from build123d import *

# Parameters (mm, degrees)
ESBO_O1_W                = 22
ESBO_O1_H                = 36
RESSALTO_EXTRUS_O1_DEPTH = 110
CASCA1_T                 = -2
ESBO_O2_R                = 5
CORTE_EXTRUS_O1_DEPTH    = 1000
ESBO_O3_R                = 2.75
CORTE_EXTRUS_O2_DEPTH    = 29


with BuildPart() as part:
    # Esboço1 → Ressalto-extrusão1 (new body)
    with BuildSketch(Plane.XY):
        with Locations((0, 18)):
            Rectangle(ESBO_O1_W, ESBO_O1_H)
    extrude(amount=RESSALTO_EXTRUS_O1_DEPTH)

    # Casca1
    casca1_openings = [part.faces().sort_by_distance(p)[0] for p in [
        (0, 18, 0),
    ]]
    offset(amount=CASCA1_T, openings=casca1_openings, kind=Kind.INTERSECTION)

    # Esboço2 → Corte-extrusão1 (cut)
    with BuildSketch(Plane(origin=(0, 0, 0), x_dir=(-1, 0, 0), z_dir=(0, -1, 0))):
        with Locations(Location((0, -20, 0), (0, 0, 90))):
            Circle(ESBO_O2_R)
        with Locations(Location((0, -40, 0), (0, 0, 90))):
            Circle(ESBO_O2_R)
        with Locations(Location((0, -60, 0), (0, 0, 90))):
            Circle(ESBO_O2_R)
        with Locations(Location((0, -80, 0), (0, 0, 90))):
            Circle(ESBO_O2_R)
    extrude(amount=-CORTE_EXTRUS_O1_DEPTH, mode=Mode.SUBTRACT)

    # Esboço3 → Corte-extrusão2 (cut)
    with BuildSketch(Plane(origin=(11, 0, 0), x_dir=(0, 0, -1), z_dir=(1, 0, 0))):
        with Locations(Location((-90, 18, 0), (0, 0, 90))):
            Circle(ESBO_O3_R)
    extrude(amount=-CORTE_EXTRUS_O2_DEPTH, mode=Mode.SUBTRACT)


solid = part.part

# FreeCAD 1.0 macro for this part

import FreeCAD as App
import Part
import Sketcher
from FreeCAD import Vector


def faces_at(feature, points):
    """Names of the faces that lie closest to the given points."""
    faces = feature.Shape.Faces
    near = lambda p: min(range(len(faces)), key=lambda i: faces[i].distToShape(Part.Vertex(*p))[0])
    return sorted({f"Face{near(p) + 1}" for p in points})

doc = App.newDocument("Part")
body = doc.addObject("PartDesign::Body", "Body")

sketch1 = body.newObject("Sketcher::SketchObject", "Sketch")
sketch1.AttachmentSupport = (doc.getObject("XY_Plane"), [""])
sketch1.MapMode = "FlatFace"
sketch1.addGeometry([
    Part.LineSegment(Vector(-11, 36, 0), Vector(-11, 0, 0)),
    Part.LineSegment(Vector(-11, 0, 0), Vector(11, 0, 0)),
    Part.LineSegment(Vector(11, 0, 0), Vector(11, 36, 0)),
    Part.LineSegment(Vector(11, 36, 0), Vector(-11, 36, 0)),
], False)
sketch1.addConstraint([
    Sketcher.Constraint("Coincident", 0, 2, 1, 1),
    Sketcher.Constraint("Coincident", 1, 2, 2, 1),
    Sketcher.Constraint("Coincident", 2, 2, 3, 1),
    Sketcher.Constraint("Coincident", 3, 2, 0, 1),
    Sketcher.Constraint("Vertical", 0),
    Sketcher.Constraint("Horizontal", 1),
    Sketcher.Constraint("Vertical", 2),
    Sketcher.Constraint("Horizontal", 3),
    Sketcher.Constraint("Symmetric", 0, 2, 1, 2, -1, 1),
    Sketcher.Constraint("DistanceX", 1, 1, 1, 2, 22.0),
    Sketcher.Constraint("DistanceY", 0, 2, 0, 1, 36.0),
])
pad1 = body.newObject("PartDesign::Pad", "Pad")
pad1.Profile = sketch1
pad1.Length = 110
doc.recompute()

thickness = body.newObject("PartDesign::Thickness", "Thickness")
thickness.Base = (pad1, faces_at(pad1, [(0, 18, 0)]))
thickness.Value = 2
thickness.Reversed = True
thickness.Join = "Intersection"

sketch2 = body.newObject("Sketcher::SketchObject", "Sketch001")
sketch2.AttachmentSupport = (doc.getObject("XZ_Plane"), [""])
sketch2.MapMode = "FlatFace"
sketch2.addGeometry([
    Part.Circle(Vector(0, 20, 0), Vector(0, 0, 1), 5),
    Part.Circle(Vector(0, 40, 0), Vector(0, 0, 1), 5),
    Part.Circle(Vector(0, 60, 0), Vector(0, 0, 1), 5),
    Part.Circle(Vector(0, 80, 0), Vector(0, 0, 1), 5),
], False)
sketch2.addConstraint([
    Sketcher.Constraint("Equal", 0, 1),
    Sketcher.Constraint("Equal", 1, 2),
    Sketcher.Constraint("Equal", 2, 3),
    Sketcher.Constraint("PointOnObject", 0, 3, -2),
    Sketcher.Constraint("PointOnObject", 1, 3, -2),
    Sketcher.Constraint("PointOnObject", 2, 3, -2),
    Sketcher.Constraint("PointOnObject", 3, 3, -2),
    Sketcher.Constraint("Diameter", 0, 10.0),
    Sketcher.Constraint("DistanceY", -1, 1, 0, 3, 20.0),
    Sketcher.Constraint("DistanceY", -1, 1, 1, 3, 40.0),
    Sketcher.Constraint("DistanceY", -1, 1, 2, 3, 60.0),
    Sketcher.Constraint("DistanceY", -1, 1, 3, 3, 80.0),
])
pocket1 = body.newObject("PartDesign::Pocket", "Pocket")
pocket1.Profile = sketch2
pocket1.Length = 1000

sketch3 = body.newObject("Sketcher::SketchObject", "Sketch002")
sketch3.AttachmentSupport = (doc.getObject("YZ_Plane"), [""])
sketch3.MapMode = "FlatFace"
sketch3.AttachmentOffset = App.Placement(Vector(0, 0, 11), App.Rotation())
sketch3.addGeometry(Part.Circle(Vector(18, 90, 0), Vector(0, 0, 1), 2.8), False)
sketch3.addConstraint([
    Sketcher.Constraint("Diameter", 0, 5.5),
    Sketcher.Constraint("DistanceX", -1, 1, 0, 3, 18.0),
    Sketcher.Constraint("DistanceY", -1, 1, 0, 3, 90.0),
])
pocket2 = body.newObject("PartDesign::Pocket", "Pocket001")
pocket2.Profile = sketch3
pocket2.Length = 29

doc.recompute()
